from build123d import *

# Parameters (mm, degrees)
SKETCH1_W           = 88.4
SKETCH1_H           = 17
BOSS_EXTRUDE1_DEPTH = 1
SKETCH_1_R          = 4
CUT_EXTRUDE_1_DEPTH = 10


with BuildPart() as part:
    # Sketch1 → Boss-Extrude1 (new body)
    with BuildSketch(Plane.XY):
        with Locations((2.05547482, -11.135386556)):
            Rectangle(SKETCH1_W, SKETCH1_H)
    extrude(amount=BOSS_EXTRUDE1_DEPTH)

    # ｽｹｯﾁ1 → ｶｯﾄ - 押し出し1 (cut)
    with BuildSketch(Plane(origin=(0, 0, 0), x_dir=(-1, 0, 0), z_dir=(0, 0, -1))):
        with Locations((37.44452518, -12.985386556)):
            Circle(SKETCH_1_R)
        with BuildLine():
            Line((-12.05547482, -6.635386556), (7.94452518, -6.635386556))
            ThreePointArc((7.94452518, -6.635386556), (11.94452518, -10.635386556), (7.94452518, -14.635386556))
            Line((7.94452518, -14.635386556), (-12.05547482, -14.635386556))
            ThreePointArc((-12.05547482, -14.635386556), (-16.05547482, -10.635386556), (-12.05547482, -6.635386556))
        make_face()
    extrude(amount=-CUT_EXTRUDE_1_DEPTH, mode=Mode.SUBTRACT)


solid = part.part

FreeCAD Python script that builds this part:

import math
import FreeCAD as App
import Part
import Sketcher
from FreeCAD import Vector
Q = App.Units.Quantity

doc = App.newDocument("Part")
body = doc.addObject("PartDesign::Body", "Body")

# Sketch on XY plane
sketch1 = doc.addObject("Sketcher::SketchObject", "Sketch")
body.addObject(sketch1)
sketch1.AttachmentSupport = (doc.XY_Plane, [""])
sketch1.MapMode = "FlatFace"
sketch1.addGeometry([
    Part.LineSegment(Vector(-42, -3, 0), Vector(-42, -20, 0)),
    Part.LineSegment(Vector(-42, -20, 0), Vector(46, -20, 0)),
    Part.LineSegment(Vector(46, -20, 0), Vector(46, -3, 0)),
    Part.LineSegment(Vector(46, -3, 0), Vector(-42, -3, 0)),
], False)
sketch1.addConstraint([
    Sketcher.Constraint("Coincident", 0, 2, 1, 1),
    Sketcher.Constraint("Coincident", 1, 2, 2, 1),
    Sketcher.Constraint("Coincident", 2, 2, 3, 1),
    Sketcher.Constraint("Coincident", 3, 2, 0, 1),
    Sketcher.Constraint("Vertical", 0),
    Sketcher.Constraint("Horizontal", 1),
    Sketcher.Constraint("Vertical", 2),
    Sketcher.Constraint("Horizontal", 3),
    Sketcher.Constraint("DistanceY", 0, 2, 0, 1, Q("17 mm")),
    Sketcher.Constraint("DistanceX", 1, 1, 1, 2, Q("88.4 mm")),
    Sketcher.Constraint("DistanceX", 0, 2, -1, 1, Q("42.144525 mm")),
    Sketcher.Constraint("DistanceY", 0, 2, -1, 1, Q("19.635387 mm")),
])
pad1 = doc.addObject("PartDesign::Pad", "Pad")
body.addObject(pad1)
pad1.Profile = sketch1
pad1.Length = 1

# Sketch on XY plane
sketch2 = doc.addObject("Sketcher::SketchObject", "Sketch001")
body.addObject(sketch2)
sketch2.AttachmentSupport = (doc.XY_Plane, [""])
sketch2.MapMode = "FlatFace"
sketch2.addGeometry([
    Part.Circle(Vector(-37.4, -13, 0), Vector(0, 0, 1), 4),  # 0
    Part.LineSegment(Vector(-7.9, -6.6, 0), Vector(12.1, -6.6, 0)),  # 1
    Part.ArcOfCircle(Part.Circle(Vector(12.1, -10.6, 0), Vector(0, 0, 1), 4), math.radians(-90), math.radians(90)),  # 2
    Part.LineSegment(Vector(12.1, -14.6, 0), Vector(-7.9, -14.6, 0)),  # 3
    Part.ArcOfCircle(Part.Circle(Vector(-7.9, -10.6, 0), Vector(0, 0, 1), 4), math.radians(90), math.radians(270)),  # 4
], False)
sketch2.addConstraint([
    Sketcher.Constraint("Tangent", 1, 2, 2, 2),
    Sketcher.Constraint("Tangent", 2, 1, 3, 1),
    Sketcher.Constraint("Tangent", 3, 2, 4, 2),
    Sketcher.Constraint("Tangent", 4, 1, 1, 1),
    Sketcher.Constraint("Horizontal", 1),
    Sketcher.Constraint("Horizontal", 3),
    Sketcher.Constraint("Equal", 0, 2),
    Sketcher.Constraint("Diameter", 0, Q("8 mm")),
    Sketcher.Constraint("DistanceX", 1, 1, 1, 2, Q("20 mm")),
    Sketcher.Constraint("DistanceX", 0, 3, 2, 3, Q("49.5 mm")),
    Sketcher.Constraint("DistanceY", 0, 3, 2, 3, Q("2.35 mm")),
    Sketcher.Constraint("DistanceX", 0, 3, -1, 1, Q("37.444525 mm")),
    Sketcher.Constraint("DistanceY", 0, 3, -1, 1, Q("12.985387 mm")),
])
pocket1 = doc.addObject("PartDesign::Pocket", "Pocket")
body.addObject(pocket1)
pocket1.Profile = sketch2
pocket1.Length = 10
pocket1.Reversed = True

doc.recompute()
